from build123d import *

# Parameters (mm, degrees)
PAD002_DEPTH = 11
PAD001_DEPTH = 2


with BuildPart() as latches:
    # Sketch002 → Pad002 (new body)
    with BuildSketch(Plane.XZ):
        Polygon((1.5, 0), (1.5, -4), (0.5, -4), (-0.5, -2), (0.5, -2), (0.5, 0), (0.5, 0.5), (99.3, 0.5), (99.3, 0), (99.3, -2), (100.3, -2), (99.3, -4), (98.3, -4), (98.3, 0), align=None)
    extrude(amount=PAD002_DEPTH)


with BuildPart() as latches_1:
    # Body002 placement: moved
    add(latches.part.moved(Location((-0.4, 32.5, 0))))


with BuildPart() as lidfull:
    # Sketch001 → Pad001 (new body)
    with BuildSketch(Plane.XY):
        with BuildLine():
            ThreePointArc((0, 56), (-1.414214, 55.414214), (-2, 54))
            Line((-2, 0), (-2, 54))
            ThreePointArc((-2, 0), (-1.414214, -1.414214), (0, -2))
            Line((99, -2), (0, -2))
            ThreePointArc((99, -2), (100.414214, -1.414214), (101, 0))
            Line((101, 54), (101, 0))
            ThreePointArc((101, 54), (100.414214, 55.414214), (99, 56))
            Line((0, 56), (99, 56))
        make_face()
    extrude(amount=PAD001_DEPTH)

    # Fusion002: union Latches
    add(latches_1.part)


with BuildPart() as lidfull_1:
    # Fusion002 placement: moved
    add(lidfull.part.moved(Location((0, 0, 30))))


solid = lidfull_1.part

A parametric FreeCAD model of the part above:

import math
import FreeCAD as App
import Part
import Sketcher

V = App.Vector


def add_polygon(sketch, points):
    """Adds a closed chain of lines whose ends are joined by coincident constraints."""
    first, n = sketch.GeometryCount, len(points)
    for a, b in zip(points, points[1:] + points[:1]):
        sketch.addGeometry(Part.LineSegment(App.Vector(*a, 0), App.Vector(*b, 0)), False)
    for i in range(n):
        sketch.addConstraint(Sketcher.Constraint("Coincident", first + i, 2, first + (i + 1) % n, 1))

doc = App.newDocument("Part")
body = doc.addObject("PartDesign::Body", "Body")

# Sketch on XZ plane
sketch1 = doc.addObject("Sketcher::SketchObject", "Sketch")
body.addObject(sketch1)
sketch1.AttachmentSupport = (doc.XZ_Plane, [""])
sketch1.MapMode = "FlatFace"
add_polygon(sketch1, [(1.5, -4), (1.5, 0), (98.3, 0), (98.3, -4), (99.3, -4), (100.3, -2), (99.3, -2), (99.3, 0.5), (0.5, 0.5), (0.5, -2), (-0.5, -2), (0.5, -4)])  # lines 0-11
sketch1.addConstraint([
    Sketcher.Constraint("Vertical", 0),
    Sketcher.Constraint("Horizontal", 1),
    Sketcher.Constraint("Vertical", 2),
    Sketcher.Constraint("Horizontal", 3),
    Sketcher.Constraint("Horizontal", 5),
    Sketcher.Constraint("Vertical", 6),
    Sketcher.Constraint("Horizontal", 7),
    Sketcher.Constraint("Vertical", 8),
    Sketcher.Constraint("Horizontal", 9),
    Sketcher.Constraint("Horizontal", 11),
    Sketcher.Constraint("PointOnObject", 0, 2, -1),
    Sketcher.Constraint("Horizontal", 5, 2, 8, 2),
    Sketcher.Constraint("Horizontal", 3, 2, 10, 2),
    Sketcher.Constraint("Vertical", 3, 2, 5, 2),
    Sketcher.Constraint("Vertical", 8, 2, 10, 2),
    Sketcher.Constraint("Equal", 3, 5),
    Sketcher.Constraint("Equal", 5, 9),
    Sketcher.Constraint("Equal", 9, 11),
    Sketcher.Constraint("DistanceX", 3, 1, 3, 2, 1.0),
    Sketcher.Constraint("DistanceY", 0, 1, 0, 2, 4.0),
    Sketcher.Constraint("DistanceX", 1, 1, 1, 2, 96.8),
    Sketcher.Constraint("DistanceY", 6, 1, 6, 2, 2.5),
    Sketcher.Constraint("DistanceY", 4, 2, -1, 1, 2.0),
    Sketcher.Constraint("DistanceX", -1, 1, 0, 2, 1.5),
])
pad1 = doc.addObject("PartDesign::Pad", "Pad")
body.addObject(pad1)
pad1.Profile = sketch1
pad1.Length = 11
body2 = doc.addObject("PartDesign::Body", "Body001")
doc.recompute()

body.Placement = App.Placement(V(-0.4, 32.5, 0), App.Rotation(V(0, 0, 1), 0))
boolean = doc.addObject("PartDesign::Boolean", "Boolean")
body2.addObject(boolean)
boolean.Type = "Fuse"
boolean.addObjects([body])
body3 = doc.addObject("PartDesign::Body", "Body002")

# Sketch on XY plane
sketch2 = doc.addObject("Sketcher::SketchObject", "Sketch001")
body3.addObject(sketch2)
sketch2.AttachmentSupport = (doc.getObject("XY_Plane002"), [""])
sketch2.MapMode = "FlatFace"
sketch2.addGeometry([
    Part.ArcOfCircle(Part.Circle(V(0, 54, 0), V(0, 0, 1), 2), math.radians(90), math.radians(180)),  # 0
    Part.LineSegment(V(-2, 54, 0), V(-2, 0, 0)),  # 1
    Part.ArcOfCircle(Part.Circle(V(0, 0, 0), V(0, 0, 1), 2), math.radians(180), math.radians(270)),  # 2
    Part.LineSegment(V(0, -2, 0), V(99, -2, 0)),  # 3
    Part.ArcOfCircle(Part.Circle(V(99, 0, 0), V(0, 0, 1), 2), math.radians(-90), math.radians(0)),  # 4
    Part.LineSegment(V(101, 0, 0), V(101, 54, 0)),  # 5
    Part.ArcOfCircle(Part.Circle(V(99, 54, 0), V(0, 0, 1), 2), math.radians(0), math.radians(90)),  # 6
    Part.LineSegment(V(99, 56, 0), V(0, 56, 0)),  # 7
], False)
sketch2.addConstraint([
    Sketcher.Constraint("Tangent", 0, 2, 1, 1),
    Sketcher.Constraint("Tangent", 1, 2, 2, 1),
    Sketcher.Constraint("Tangent", 2, 2, 3, 1),
    Sketcher.Constraint("Tangent", 3, 2, 4, 1),
    Sketcher.Constraint("Tangent", 4, 2, 5, 1),
    Sketcher.Constraint("Tangent", 5, 2, 6, 1),
    Sketcher.Constraint("Tangent", 6, 2, 7, 1),
    Sketcher.Constraint("Tangent", 7, 2, 0, 1),
    Sketcher.Constraint("Vertical", 1),
    Sketcher.Constraint("Horizontal", 3),
    Sketcher.Constraint("Vertical", 5),
    Sketcher.Constraint("Horizontal", 7),
    Sketcher.Constraint("Coincident", 2, 3, -1, 1),
    Sketcher.Constraint("Equal", 0, 2),
    Sketcher.Constraint("Equal", 2, 4),
    Sketcher.Constraint("Equal", 4, 6),
    Sketcher.Constraint("Radius", 0, 1.999999),
    Sketcher.Constraint("DistanceX", 3, 1, 3, 2, 99.0),
    Sketcher.Constraint("DistanceY", 1, 2, 1, 1, 54.0),
])
pad2 = doc.addObject("PartDesign::Pad", "Pad001")
body3.addObject(pad2)
pad2.Profile = sketch2
pad2.Length = 2
doc.recompute()

boolean2 = doc.addObject("PartDesign::Boolean", "Boolean001")
body3.addObject(boolean2)
boolean2.Type = "Fuse"
boolean2.addObjects([body2])
body4 = doc.addObject("PartDesign::Body", "Body003")
doc.recompute()

body3.Placement = App.Placement(V(0, 0, 30), App.Rotation(V(0, 0, 1), 0))
boolean3 = doc.addObject("PartDesign::Boolean", "Boolean002")
body4.addObject(boolean3)
boolean3.Type = "Fuse"
boolean3.addObjects([body3])

doc.recompute()
